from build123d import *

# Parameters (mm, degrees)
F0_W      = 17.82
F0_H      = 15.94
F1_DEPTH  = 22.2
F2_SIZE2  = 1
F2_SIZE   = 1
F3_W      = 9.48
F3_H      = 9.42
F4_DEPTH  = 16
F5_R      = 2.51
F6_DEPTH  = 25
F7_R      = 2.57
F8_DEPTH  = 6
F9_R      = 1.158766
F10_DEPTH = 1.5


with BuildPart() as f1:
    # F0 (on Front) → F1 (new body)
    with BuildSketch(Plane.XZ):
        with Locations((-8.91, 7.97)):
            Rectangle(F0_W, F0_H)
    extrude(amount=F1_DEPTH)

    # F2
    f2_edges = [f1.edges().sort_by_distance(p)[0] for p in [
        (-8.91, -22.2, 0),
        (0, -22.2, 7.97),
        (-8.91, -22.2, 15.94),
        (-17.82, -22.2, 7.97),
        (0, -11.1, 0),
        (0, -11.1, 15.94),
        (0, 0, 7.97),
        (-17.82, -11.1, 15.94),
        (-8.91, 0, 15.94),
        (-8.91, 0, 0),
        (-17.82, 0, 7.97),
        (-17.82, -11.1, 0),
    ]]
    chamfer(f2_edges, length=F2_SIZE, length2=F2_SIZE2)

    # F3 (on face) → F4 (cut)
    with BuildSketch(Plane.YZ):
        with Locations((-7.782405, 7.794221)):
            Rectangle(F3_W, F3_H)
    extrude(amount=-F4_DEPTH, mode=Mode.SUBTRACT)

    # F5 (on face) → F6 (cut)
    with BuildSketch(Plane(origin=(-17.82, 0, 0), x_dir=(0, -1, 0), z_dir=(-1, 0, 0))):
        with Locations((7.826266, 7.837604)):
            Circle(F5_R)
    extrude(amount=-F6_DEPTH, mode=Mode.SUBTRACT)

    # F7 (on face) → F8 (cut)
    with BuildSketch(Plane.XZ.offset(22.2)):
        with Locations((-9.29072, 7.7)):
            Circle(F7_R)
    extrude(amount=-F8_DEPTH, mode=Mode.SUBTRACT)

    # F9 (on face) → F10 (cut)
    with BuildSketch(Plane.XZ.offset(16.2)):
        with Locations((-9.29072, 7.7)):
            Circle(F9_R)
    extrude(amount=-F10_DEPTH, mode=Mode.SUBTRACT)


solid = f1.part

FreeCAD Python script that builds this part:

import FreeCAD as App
import Part
import Sketcher


def add_polygon(sketch, points):
    """Adds a closed chain of lines whose ends are joined by coincident constraints."""
    first, n = sketch.GeometryCount, len(points)
    for a, b in zip(points, points[1:] + points[:1]):
        sketch.addGeometry(Part.LineSegment(App.Vector(*a, 0), App.Vector(*b, 0)), False)
    for i in range(n):
        sketch.addConstraint(Sketcher.Constraint("Coincident", first + i, 2, first + (i + 1) % n, 1))

doc = App.newDocument("Part")
params = doc.addObject("Spreadsheet::Sheet", "Params")
for row, (alias, value) in enumerate([
    ("sketch1_width", "17.82 mm"),
    ("sketch1_height", "15.94 mm"),
    ("pad1_length", "22.2 mm"),
    ("chamfer_size", "1 mm"),
    ("chamfer_size2", "1 mm"),
    ("sketch2_width", "9.48 mm"),
    ("sketch2_height", "9.42 mm"),
    ("pocket1_length", "16 mm"),
    ("sketch3_diameter", "5.02 mm"),
    ("pocket2_length", "25 mm"),
    ("sketch4_diameter", "5.14 mm"),
    ("pocket3_length", "6 mm"),
    ("pocket4_length", "1.5 mm"),
], start=1):
    params.set(f"A{row}", alias)
    params.set(f"B{row}", "=" + value)
    params.setAlias(f"B{row}", alias)

body = doc.addObject("PartDesign::Body", "Body")

# Sketch on XZ plane
sketch1 = doc.addObject("Sketcher::SketchObject", "Sketch")
body.addObject(sketch1)
sketch1.AttachmentSupport = (doc.XZ_Plane, [""])
sketch1.MapMode = "FlatFace"
add_polygon(sketch1, [(-18, 16), (-18, 0), (0, 0), (0, 16)])  # lines 0-3
sketch1.addConstraint(Sketcher.Constraint("Vertical", 0))
sketch1.addConstraint(Sketcher.Constraint("Horizontal", 1))
sketch1.addConstraint(Sketcher.Constraint("Vertical", 2))
sketch1.addConstraint(Sketcher.Constraint("Horizontal", 3))
sketch1.addConstraint(Sketcher.Constraint("Coincident", 1, 2, -1, 1))
sketch1.addConstraint(Sketcher.Constraint("DistanceX", 1, 1, 1, 2, 17.82))
sketch1.addConstraint(Sketcher.Constraint("DistanceY", 0, 2, 0, 1, 15.94))
sketch1.setExpression("Constraints[9]", "Params.sketch1_width")
sketch1.setExpression("Constraints[10]", "Params.sketch1_height")
pad1 = doc.addObject("PartDesign::Pad", "Pad")
body.addObject(pad1)
pad1.Profile = sketch1
pad1.setExpression("Length", "Params.pad1_length")
doc.recompute()

chamfer = doc.addObject("PartDesign::Chamfer", "Chamfer")
body.addObject(chamfer)
chamfer.Base = (pad1, ["Edge1"])
chamfer.UseAllEdges = True
chamfer.ChamferType = "Two distances"
chamfer.setExpression("Size", "Params.chamfer_size")
chamfer.setExpression("Size2", "Params.chamfer_size2")

# Sketch on YZ plane
sketch2 = doc.addObject("Sketcher::SketchObject", "Sketch001")
body.addObject(sketch2)
sketch2.AttachmentSupport = (doc.YZ_Plane, [""])
sketch2.MapMode = "FlatFace"
add_polygon(sketch2, [(-13, 13), (-13, 3), (-3, 3), (-3, 13)])  # lines 0-3
sketch2.addConstraint(Sketcher.Constraint("Vertical", 0))
sketch2.addConstraint(Sketcher.Constraint("Horizontal", 1))
sketch2.addConstraint(Sketcher.Constraint("Vertical", 2))
sketch2.addConstraint(Sketcher.Constraint("Horizontal", 3))
sketch2.addConstraint(Sketcher.Constraint("DistanceX", 1, 1, 1, 2, 9.48))
sketch2.addConstraint(Sketcher.Constraint("DistanceY", 0, 2, 0, 1, 9.42))
sketch2.addConstraint(Sketcher.Constraint("DistanceY", -1, 1, 0, 2, 3.084221))
sketch2.addConstraint(Sketcher.Constraint("DistanceX", 0, 2, -1, 1, 12.522405))
sketch2.setExpression("Constraints[8]", "Params.sketch2_width")
sketch2.setExpression("Constraints[9]", "Params.sketch2_height")
pocket1 = doc.addObject("PartDesign::Pocket", "Pocket")
body.addObject(pocket1)
pocket1.Profile = sketch2
pocket1.setExpression("Length", "Params.pocket1_length")

# Sketch on YZ plane
sketch3 = doc.addObject("Sketcher::SketchObject", "Sketch002")
body.addObject(sketch3)
sketch3.AttachmentSupport = (doc.YZ_Plane, [""])
sketch3.MapMode = "FlatFace"
sketch3.AttachmentOffset = App.Placement(App.Vector(0, 0, -17.82), App.Rotation())
sketch3.addGeometry(Part.Circle(App.Vector(-7.8, 7.8, 0), App.Vector(0, 0, 1), 2.5), False)
sketch3.addConstraint(Sketcher.Constraint("Diameter", 0, 5.02))
sketch3.addConstraint(Sketcher.Constraint("DistanceX", 0, 3, -1, 1, 7.826266))
sketch3.addConstraint(Sketcher.Constraint("DistanceY", -1, 1, 0, 3, 7.837604))
sketch3.setExpression("Constraints[0]", "Params.sketch3_diameter")
pocket2 = doc.addObject("PartDesign::Pocket", "Pocket001")
body.addObject(pocket2)
pocket2.Profile = sketch3
pocket2.setExpression("Length", "Params.pocket2_length")
pocket2.Reversed = True

# Sketch on XZ plane
sketch4 = doc.addObject("Sketcher::SketchObject", "Sketch003")
body.addObject(sketch4)
sketch4.AttachmentSupport = (doc.XZ_Plane, [""])
sketch4.MapMode = "FlatFace"
sketch4.AttachmentOffset = App.Placement(App.Vector(0, 0, 22.2), App.Rotation())
sketch4.addGeometry(Part.Circle(App.Vector(-9.3, 7.7, 0), App.Vector(0, 0, 1), 2.6), False)
sketch4.addConstraint(Sketcher.Constraint("Diameter", 0, 5.14))
sketch4.addConstraint(Sketcher.Constraint("DistanceY", -1, 1, 0, 3, 7.7))
sketch4.addConstraint(Sketcher.Constraint("DistanceX", 0, 3, -1, 1, 9.29072))
sketch4.setExpression("Constraints[0]", "Params.sketch4_diameter")
pocket3 = doc.addObject("PartDesign::Pocket", "Pocket002")
body.addObject(pocket3)
pocket3.Profile = sketch4
pocket3.setExpression("Length", "Params.pocket3_length")

# Sketch on XZ plane
sketch5 = doc.addObject("Sketcher::SketchObject", "Sketch004")
body.addObject(sketch5)
sketch5.AttachmentSupport = (doc.XZ_Plane, [""])
sketch5.MapMode = "FlatFace"
sketch5.AttachmentOffset = App.Placement(App.Vector(0, 0, 16.2), App.Rotation())
sketch5.addGeometry(Part.Circle(App.Vector(-9.3, 7.7, 0), App.Vector(0, 0, 1), 1.2), False)
sketch5.addConstraint(Sketcher.Constraint("DistanceY", -1, 1, 0, 3, 7.7))
sketch5.addConstraint(Sketcher.Constraint("Diameter", 0, 2.317532))
sketch5.addConstraint(Sketcher.Constraint("DistanceX", 0, 3, -1, 1, 9.29072))
pocket4 = doc.addObject("PartDesign::Pocket", "Pocket003")
body.addObject(pocket4)
pocket4.Profile = sketch5
pocket4.setExpression("Length", "Params.pocket4_length")

doc.recompute()
